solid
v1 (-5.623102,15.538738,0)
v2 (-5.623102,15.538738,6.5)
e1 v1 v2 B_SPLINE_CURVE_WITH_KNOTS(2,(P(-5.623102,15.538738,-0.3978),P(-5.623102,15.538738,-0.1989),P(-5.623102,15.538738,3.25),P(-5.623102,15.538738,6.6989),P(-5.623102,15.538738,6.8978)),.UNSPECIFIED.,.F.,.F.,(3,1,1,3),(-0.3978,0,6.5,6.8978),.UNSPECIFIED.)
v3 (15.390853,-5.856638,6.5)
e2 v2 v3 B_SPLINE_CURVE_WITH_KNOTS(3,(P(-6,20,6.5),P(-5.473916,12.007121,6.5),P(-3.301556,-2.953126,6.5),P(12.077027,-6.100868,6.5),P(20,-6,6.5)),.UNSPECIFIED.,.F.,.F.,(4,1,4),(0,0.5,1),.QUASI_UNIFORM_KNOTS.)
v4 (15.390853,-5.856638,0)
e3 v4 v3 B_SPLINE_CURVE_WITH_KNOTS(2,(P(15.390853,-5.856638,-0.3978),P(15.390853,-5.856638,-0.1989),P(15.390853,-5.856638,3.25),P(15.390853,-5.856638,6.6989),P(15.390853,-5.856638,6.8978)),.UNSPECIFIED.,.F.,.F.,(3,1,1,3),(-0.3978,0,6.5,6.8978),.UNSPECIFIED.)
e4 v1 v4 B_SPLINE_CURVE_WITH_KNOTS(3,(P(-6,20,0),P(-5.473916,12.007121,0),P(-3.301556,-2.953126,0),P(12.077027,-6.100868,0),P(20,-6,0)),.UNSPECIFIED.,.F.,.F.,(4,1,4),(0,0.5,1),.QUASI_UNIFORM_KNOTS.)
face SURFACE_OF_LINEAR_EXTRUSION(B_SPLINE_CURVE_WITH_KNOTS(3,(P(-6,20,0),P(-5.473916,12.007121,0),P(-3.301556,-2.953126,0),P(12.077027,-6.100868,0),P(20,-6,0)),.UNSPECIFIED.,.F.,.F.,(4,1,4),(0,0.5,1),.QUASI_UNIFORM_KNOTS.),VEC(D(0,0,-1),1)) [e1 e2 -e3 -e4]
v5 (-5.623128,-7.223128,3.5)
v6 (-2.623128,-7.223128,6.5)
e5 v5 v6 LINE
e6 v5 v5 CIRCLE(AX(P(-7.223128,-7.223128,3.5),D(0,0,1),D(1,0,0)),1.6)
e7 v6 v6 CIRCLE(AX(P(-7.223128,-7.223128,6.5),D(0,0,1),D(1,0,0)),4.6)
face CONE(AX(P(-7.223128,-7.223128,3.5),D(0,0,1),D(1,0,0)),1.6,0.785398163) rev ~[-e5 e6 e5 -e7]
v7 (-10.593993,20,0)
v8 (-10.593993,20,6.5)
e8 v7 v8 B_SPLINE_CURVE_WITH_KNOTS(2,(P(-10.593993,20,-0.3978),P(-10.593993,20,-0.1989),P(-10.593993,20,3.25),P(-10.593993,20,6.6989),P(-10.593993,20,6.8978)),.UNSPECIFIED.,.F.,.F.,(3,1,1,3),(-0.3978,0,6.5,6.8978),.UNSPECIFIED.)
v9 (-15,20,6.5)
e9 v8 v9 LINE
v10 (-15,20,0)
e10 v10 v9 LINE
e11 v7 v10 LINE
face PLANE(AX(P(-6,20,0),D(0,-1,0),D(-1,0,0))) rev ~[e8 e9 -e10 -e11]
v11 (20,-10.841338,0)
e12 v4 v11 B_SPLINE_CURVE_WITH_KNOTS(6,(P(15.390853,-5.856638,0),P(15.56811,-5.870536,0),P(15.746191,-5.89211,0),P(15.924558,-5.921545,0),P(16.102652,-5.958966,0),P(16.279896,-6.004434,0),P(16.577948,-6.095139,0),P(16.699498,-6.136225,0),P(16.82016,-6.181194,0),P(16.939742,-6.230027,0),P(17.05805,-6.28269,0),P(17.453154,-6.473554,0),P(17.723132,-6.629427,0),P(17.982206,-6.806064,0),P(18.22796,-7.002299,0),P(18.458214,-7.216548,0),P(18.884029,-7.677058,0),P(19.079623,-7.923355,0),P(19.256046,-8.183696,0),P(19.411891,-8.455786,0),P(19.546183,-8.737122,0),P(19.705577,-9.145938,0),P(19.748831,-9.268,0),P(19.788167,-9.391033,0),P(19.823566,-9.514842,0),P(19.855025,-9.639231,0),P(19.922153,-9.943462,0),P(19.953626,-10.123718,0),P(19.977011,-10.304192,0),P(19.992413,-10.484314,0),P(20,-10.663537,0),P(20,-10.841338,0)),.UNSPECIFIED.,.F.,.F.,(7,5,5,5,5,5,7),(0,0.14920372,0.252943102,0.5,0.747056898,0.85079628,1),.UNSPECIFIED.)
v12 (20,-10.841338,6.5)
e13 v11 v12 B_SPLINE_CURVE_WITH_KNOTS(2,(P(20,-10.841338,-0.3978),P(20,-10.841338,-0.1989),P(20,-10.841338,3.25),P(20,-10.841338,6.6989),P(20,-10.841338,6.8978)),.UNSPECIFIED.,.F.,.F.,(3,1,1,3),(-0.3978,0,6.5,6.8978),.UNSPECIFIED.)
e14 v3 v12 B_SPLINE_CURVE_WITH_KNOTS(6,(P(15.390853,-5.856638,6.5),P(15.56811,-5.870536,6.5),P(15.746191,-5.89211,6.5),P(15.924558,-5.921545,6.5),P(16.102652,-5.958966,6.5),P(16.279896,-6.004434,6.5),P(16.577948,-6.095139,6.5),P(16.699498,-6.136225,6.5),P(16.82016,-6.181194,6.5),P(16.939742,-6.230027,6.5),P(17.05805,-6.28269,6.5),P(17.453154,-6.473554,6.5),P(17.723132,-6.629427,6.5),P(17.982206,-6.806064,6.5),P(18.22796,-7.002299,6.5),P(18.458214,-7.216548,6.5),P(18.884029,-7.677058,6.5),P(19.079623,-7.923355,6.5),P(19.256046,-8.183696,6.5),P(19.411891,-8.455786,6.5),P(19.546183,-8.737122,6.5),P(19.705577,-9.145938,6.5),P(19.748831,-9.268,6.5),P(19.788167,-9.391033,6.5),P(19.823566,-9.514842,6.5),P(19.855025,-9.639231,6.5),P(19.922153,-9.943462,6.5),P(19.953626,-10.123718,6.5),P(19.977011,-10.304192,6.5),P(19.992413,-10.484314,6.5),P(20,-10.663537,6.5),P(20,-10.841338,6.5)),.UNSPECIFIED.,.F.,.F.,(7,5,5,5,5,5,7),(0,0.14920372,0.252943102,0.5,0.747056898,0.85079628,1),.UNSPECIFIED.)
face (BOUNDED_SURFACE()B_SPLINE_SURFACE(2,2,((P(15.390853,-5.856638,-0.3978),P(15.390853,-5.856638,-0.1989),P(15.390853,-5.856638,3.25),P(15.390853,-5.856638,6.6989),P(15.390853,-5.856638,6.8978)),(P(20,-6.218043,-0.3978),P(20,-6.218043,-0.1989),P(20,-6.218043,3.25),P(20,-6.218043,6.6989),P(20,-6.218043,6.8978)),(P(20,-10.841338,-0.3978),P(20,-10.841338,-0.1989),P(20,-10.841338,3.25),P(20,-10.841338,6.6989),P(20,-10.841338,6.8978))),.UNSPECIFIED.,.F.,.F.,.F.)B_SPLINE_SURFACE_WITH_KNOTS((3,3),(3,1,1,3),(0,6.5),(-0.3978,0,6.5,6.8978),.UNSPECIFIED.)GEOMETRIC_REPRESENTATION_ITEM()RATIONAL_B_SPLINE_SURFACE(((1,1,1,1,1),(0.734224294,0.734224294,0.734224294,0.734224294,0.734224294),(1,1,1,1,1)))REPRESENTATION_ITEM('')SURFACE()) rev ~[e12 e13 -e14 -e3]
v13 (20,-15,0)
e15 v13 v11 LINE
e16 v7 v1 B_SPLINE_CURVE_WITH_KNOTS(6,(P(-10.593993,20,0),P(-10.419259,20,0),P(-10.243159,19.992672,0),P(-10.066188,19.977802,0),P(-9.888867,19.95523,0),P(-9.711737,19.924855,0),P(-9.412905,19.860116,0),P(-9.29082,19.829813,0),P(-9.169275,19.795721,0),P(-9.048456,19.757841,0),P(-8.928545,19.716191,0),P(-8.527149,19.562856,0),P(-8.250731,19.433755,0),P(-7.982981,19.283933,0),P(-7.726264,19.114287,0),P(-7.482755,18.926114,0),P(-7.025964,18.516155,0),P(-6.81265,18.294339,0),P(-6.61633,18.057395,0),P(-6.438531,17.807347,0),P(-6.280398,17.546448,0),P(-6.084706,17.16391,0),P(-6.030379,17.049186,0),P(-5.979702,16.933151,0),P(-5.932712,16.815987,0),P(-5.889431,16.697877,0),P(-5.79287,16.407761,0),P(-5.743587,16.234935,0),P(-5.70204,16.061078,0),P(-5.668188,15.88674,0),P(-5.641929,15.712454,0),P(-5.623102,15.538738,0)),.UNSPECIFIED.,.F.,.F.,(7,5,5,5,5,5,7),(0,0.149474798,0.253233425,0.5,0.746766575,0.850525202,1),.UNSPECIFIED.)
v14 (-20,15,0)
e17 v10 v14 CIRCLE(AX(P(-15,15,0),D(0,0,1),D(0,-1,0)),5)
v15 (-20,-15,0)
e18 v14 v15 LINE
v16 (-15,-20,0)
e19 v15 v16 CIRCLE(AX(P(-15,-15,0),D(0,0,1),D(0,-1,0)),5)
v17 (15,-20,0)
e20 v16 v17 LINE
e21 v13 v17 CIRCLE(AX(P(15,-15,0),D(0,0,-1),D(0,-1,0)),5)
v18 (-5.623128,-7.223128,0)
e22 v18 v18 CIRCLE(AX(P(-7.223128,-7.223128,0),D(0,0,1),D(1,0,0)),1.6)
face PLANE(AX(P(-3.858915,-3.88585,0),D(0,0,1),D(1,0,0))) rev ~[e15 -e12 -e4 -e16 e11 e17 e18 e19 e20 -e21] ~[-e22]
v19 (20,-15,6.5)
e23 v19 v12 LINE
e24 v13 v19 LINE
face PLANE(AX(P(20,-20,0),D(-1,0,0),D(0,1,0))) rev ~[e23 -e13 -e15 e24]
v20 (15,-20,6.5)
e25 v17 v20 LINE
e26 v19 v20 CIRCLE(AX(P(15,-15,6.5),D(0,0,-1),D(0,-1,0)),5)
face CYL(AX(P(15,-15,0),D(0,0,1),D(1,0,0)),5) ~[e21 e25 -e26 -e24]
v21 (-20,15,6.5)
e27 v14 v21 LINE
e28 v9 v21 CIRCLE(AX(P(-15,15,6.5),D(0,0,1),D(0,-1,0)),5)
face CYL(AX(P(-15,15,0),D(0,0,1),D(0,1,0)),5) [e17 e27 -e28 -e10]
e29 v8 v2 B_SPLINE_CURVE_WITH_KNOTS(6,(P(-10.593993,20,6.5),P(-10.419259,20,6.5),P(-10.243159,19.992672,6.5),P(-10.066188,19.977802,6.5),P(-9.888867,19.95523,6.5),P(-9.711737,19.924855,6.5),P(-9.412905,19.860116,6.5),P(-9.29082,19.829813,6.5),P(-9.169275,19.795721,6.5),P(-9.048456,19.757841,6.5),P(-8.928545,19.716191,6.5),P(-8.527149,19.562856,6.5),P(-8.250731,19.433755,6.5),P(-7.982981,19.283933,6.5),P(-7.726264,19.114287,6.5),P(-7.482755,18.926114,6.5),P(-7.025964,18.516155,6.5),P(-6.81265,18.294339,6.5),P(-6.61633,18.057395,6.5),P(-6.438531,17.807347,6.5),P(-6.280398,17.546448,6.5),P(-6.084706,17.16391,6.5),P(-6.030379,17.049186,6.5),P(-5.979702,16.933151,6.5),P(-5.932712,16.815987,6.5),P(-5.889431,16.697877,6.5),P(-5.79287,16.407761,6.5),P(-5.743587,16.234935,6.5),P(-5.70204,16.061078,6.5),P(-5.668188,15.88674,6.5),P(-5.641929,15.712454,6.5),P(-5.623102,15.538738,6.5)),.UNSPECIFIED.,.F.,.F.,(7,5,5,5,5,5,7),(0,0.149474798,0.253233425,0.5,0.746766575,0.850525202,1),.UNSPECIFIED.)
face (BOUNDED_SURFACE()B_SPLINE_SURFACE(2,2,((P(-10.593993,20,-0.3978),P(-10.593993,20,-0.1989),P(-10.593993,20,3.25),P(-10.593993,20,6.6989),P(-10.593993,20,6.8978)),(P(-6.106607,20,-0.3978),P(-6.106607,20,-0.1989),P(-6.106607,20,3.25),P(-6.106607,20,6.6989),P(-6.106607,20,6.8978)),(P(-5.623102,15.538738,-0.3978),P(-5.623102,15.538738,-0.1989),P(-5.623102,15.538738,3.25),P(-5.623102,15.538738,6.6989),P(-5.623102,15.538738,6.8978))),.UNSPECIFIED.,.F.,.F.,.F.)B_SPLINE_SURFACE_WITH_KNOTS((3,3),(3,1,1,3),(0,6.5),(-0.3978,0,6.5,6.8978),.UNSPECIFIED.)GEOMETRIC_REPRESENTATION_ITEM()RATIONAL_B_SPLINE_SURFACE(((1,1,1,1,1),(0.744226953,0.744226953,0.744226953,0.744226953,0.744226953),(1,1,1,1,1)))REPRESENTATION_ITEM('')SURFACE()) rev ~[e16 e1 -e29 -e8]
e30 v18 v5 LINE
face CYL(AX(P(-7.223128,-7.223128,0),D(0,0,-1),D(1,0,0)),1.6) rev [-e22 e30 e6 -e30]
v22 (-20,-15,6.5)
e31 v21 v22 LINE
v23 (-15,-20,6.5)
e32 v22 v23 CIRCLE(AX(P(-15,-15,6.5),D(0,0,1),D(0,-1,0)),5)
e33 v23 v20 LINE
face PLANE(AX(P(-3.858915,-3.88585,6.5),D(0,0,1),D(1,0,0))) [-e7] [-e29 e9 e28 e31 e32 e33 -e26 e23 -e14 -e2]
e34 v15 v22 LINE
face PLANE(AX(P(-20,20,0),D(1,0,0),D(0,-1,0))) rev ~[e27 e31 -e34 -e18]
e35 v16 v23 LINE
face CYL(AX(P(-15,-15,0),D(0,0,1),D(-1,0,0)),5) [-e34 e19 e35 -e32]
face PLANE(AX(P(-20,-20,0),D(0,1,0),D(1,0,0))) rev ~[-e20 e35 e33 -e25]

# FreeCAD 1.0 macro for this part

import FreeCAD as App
import Part
import Sketcher


def edges_at(feature, points):
    """Names of the edges that pass closest to the given points."""
    edges = feature.Shape.Edges
    near = lambda p: min(range(len(edges)), key=lambda i: edges[i].distToShape(Part.Vertex(*p))[0])
    return sorted({f"Edge{near(p) + 1}" for p in points})

doc = App.newDocument("Part")
body = doc.addObject("PartDesign::Body", "Body")

# Sketch on XY plane
sketch1 = body.newObject("Sketcher::SketchObject", "Sketch")
sketch1.AttachmentSupport = (doc.getObject("XY_Plane"), [""])
sketch1.MapMode = "FlatFace"
sketch1.addGeometry([
    Part.LineSegment(App.Vector(-6, 20, 0), App.Vector(-20, 20, 0)),  # 0
    Part.LineSegment(App.Vector(-20, 20, 0), App.Vector(-20, -20, 0)),  # 1
    Part.LineSegment(App.Vector(-20, -20, 0), App.Vector(20, -20, 0)),  # 2
    Part.LineSegment(App.Vector(20, -20, 0), App.Vector(20, -6, 0)),  # 3
    Part.BSplineCurve([App.Vector(-6, 20, 0), App.Vector(-5.473916, 12.007121, 0), App.Vector(-3.301556, -2.953126, 0), App.Vector(12.077027, -6.100868, 0), App.Vector(20, -6, 0)], [4, 1, 4], [0, 0.5, 1], False, 3, [1, 1, 1, 1, 1], False),  # 4
    Part.Circle(App.Vector(-7.223128, -7.223128, 0), App.Vector(0, 0, 1), 1.6),  # 5
], False)
sketch1.addConstraint([
    Sketcher.Constraint("Block", 4),
    Sketcher.Constraint("Coincident", 0, 2, 1, 1),
    Sketcher.Constraint("Coincident", 1, 2, 2, 1),
    Sketcher.Constraint("Coincident", 2, 2, 3, 1),
    Sketcher.Constraint("Coincident", 3, 2, 4, 2),
    Sketcher.Constraint("Coincident", 4, 1, 0, 1),
    Sketcher.Constraint("Horizontal", 0),
    Sketcher.Constraint("Vertical", 1),
    Sketcher.Constraint("Horizontal", 2),
    Sketcher.Constraint("Vertical", 3),
    Sketcher.Constraint("Symmetric", 0, 2, 2, 2, -1, 1),
    Sketcher.Constraint("Diameter", 5, 3.2),
    Sketcher.Constraint("DistanceX", 5, 3, -1, 1, 7.223128),
    Sketcher.Constraint("DistanceY", 5, 3, -1, 1, 7.223128),
])
pad1 = body.newObject("PartDesign::Pad", "Pad")
pad1.Profile = sketch1
pad1.Length = 6.5
doc.recompute()

chamfer = body.newObject("PartDesign::Chamfer", "Chamfer")
chamfer.Base = (pad1, edges_at(pad1, [(-8.823, -7.223, 6.5)]))
chamfer.Size = 3
doc.recompute()

fillet = body.newObject("PartDesign::Fillet", "Fillet")
fillet.Base = (chamfer, edges_at(chamfer, [
    (-20, -20, 3.25),
    (20, -20, 3.25),
    (20, -6, 3.25),
    (-20, 20, 3.25),
    (-6, 20, 3.25),
]))
fillet.Radius = 5

doc.recompute()
